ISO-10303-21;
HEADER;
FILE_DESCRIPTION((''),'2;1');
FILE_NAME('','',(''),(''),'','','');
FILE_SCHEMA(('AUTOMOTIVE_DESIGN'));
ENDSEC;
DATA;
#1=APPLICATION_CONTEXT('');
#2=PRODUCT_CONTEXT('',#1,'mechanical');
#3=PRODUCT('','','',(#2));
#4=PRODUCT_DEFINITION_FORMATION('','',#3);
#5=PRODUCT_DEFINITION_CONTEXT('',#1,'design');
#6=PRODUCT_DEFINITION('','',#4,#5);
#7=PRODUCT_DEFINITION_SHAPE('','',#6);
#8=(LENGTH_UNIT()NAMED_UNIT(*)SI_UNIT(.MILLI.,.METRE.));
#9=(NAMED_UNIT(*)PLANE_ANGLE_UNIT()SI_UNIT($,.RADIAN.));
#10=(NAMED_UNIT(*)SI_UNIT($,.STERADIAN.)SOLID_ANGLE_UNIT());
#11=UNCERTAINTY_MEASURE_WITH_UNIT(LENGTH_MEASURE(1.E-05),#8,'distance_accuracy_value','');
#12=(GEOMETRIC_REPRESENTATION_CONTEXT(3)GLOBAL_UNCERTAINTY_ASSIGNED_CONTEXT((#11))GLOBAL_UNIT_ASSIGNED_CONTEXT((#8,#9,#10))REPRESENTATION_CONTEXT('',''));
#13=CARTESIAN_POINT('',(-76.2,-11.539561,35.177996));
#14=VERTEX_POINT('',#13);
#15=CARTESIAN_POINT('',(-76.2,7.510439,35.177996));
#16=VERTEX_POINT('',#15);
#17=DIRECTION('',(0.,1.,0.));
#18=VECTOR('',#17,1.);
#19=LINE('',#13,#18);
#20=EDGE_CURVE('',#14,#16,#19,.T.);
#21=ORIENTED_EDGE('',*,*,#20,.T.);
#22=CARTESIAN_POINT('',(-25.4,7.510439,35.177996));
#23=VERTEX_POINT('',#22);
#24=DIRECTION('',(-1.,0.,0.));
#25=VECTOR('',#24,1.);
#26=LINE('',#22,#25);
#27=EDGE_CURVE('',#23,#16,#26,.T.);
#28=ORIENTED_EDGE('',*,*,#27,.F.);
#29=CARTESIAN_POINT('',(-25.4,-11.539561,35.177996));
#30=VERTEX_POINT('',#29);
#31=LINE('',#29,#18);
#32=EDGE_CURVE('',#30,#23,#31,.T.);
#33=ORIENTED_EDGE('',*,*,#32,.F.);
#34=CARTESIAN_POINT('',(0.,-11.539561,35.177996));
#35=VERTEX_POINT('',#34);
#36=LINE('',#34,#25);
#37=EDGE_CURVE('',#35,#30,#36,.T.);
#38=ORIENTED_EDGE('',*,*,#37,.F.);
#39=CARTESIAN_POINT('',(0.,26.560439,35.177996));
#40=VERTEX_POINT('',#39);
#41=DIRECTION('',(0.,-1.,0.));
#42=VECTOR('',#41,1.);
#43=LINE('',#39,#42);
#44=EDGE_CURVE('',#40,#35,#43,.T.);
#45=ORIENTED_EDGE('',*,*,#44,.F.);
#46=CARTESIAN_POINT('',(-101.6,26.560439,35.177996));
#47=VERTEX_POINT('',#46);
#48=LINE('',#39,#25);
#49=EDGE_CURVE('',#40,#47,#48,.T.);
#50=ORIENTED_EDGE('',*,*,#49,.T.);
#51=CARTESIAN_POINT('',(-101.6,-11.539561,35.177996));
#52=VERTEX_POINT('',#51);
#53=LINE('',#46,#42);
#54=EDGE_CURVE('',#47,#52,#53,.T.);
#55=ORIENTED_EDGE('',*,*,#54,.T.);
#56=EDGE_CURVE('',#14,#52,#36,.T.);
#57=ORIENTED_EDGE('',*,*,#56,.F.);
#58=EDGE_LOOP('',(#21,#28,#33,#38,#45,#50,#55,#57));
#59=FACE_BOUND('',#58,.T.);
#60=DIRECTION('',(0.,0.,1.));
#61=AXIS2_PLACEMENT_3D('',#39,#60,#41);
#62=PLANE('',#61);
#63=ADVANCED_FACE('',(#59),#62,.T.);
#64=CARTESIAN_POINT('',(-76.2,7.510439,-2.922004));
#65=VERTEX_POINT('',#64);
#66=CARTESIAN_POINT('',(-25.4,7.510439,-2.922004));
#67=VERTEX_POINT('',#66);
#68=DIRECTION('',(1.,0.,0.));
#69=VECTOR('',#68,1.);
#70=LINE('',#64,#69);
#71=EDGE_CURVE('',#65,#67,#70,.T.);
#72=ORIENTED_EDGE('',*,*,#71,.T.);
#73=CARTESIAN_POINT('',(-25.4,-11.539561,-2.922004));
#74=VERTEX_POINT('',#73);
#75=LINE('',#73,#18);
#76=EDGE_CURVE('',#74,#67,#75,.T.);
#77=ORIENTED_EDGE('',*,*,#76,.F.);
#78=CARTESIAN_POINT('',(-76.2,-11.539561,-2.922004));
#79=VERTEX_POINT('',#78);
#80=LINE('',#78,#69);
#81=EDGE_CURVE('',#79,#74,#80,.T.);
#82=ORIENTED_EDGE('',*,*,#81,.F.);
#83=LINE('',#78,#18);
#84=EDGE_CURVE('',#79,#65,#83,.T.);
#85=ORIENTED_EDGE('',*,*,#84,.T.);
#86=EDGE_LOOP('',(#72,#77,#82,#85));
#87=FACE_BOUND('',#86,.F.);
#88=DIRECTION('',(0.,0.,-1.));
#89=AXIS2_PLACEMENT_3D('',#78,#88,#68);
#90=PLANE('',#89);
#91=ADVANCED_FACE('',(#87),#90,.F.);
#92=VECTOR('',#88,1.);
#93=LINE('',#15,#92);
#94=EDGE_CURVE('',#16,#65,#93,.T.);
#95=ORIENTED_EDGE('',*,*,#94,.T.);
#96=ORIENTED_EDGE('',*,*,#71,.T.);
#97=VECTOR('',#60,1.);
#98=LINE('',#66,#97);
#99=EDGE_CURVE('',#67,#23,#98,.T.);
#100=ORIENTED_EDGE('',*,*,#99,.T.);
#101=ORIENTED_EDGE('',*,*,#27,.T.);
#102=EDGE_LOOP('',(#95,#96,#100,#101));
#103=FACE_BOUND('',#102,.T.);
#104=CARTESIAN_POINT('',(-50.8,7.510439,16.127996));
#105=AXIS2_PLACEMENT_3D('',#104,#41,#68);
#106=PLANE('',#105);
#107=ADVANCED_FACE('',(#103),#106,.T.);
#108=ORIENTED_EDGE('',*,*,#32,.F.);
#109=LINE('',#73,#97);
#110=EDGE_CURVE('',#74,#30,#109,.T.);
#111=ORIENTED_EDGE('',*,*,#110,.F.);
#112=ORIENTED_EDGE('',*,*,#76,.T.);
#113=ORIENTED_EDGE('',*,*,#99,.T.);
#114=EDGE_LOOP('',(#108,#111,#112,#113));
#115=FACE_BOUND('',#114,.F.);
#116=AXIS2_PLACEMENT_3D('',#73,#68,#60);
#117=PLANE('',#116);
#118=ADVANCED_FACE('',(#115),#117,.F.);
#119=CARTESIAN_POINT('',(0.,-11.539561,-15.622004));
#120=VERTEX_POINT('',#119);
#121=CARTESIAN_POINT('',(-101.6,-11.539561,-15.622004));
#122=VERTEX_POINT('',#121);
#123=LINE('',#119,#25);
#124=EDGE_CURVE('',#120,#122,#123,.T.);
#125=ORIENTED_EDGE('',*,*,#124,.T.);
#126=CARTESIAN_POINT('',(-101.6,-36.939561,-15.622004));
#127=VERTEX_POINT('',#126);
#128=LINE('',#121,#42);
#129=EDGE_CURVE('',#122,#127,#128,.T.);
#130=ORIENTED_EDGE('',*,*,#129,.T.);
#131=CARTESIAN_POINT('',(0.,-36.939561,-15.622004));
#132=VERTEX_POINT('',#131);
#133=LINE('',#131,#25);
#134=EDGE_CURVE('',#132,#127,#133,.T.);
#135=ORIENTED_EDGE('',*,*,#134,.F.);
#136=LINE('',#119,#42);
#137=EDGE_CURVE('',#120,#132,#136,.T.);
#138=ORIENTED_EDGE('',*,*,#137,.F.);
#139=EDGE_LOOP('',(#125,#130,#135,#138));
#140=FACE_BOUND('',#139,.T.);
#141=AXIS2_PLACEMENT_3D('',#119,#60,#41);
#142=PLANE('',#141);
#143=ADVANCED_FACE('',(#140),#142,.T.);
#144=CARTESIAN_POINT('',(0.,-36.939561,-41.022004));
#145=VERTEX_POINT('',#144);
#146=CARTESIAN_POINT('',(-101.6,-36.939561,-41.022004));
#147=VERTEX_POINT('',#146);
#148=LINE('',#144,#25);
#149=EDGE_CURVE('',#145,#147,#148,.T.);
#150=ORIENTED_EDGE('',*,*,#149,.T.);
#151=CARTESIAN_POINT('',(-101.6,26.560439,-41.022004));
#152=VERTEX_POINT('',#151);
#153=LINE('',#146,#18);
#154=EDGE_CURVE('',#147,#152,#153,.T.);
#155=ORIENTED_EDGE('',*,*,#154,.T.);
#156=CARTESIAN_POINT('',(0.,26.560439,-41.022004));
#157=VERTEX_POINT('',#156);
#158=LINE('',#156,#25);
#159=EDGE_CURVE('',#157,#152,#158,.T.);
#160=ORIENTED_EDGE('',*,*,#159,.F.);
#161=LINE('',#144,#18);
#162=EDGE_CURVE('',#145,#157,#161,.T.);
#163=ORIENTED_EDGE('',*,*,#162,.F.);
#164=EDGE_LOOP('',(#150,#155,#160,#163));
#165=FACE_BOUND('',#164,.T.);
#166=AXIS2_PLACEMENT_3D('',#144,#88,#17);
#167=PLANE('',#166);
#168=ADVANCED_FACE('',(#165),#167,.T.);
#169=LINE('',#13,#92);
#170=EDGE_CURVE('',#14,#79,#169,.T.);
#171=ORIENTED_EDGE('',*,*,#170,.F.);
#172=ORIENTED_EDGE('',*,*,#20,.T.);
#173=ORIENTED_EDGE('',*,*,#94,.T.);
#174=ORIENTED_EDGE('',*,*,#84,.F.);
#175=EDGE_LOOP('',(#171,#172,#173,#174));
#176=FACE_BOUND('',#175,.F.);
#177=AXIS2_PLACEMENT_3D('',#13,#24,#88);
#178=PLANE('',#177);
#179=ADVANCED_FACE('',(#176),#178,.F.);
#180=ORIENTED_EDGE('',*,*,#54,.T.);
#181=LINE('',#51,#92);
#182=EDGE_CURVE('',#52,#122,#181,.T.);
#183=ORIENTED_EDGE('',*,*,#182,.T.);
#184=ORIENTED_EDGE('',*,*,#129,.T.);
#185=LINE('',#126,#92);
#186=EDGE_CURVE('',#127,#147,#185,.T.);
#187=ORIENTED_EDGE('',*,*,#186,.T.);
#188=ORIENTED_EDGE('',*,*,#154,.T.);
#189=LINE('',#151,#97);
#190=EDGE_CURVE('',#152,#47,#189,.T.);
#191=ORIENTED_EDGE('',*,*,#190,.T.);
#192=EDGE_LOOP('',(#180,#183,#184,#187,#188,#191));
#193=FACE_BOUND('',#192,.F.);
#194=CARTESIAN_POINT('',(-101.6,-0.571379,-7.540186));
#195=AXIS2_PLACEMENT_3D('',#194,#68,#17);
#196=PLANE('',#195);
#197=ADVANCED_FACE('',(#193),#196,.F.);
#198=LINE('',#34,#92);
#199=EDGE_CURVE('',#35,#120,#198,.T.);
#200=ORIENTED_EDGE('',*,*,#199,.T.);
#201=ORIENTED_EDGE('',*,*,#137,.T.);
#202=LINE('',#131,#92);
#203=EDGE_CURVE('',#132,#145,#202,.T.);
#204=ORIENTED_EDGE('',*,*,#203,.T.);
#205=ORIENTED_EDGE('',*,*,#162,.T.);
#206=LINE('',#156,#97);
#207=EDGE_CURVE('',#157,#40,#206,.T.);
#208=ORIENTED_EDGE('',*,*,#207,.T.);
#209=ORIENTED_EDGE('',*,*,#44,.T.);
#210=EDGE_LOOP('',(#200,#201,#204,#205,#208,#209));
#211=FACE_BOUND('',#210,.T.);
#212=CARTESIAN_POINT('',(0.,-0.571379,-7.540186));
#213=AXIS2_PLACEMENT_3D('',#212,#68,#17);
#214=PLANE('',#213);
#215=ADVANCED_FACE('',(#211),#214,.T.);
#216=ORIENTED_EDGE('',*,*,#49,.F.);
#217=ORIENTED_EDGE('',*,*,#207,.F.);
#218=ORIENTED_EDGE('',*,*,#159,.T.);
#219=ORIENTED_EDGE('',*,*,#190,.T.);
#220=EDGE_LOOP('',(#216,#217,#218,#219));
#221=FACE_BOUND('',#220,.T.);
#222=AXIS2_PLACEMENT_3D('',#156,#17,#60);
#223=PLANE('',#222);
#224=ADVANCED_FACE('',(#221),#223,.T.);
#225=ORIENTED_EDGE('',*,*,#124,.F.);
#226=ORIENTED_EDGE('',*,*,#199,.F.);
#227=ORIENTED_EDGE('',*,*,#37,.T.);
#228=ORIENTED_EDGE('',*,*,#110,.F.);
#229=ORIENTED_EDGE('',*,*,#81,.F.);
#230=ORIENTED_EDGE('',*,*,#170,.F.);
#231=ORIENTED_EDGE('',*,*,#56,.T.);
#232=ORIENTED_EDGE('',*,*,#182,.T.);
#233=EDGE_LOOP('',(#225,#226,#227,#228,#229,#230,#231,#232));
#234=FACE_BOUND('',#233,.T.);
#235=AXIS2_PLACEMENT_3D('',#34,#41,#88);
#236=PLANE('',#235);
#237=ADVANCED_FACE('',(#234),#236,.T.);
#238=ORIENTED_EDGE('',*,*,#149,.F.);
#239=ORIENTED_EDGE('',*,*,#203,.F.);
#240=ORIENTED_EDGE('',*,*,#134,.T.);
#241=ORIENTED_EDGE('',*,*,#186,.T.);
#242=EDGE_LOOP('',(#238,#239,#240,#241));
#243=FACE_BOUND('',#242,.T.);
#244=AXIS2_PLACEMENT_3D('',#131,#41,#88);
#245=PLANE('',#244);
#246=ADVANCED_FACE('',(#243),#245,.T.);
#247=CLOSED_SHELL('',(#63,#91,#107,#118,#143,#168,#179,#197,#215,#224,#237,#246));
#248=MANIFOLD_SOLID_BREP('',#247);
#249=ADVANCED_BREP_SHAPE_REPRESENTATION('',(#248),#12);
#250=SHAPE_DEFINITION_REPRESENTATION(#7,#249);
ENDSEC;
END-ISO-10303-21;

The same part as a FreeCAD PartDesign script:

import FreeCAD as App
import Part
import Sketcher

V = App.Vector
Q = App.Units.Quantity

doc = App.newDocument("Part")
body = doc.addObject("PartDesign::Body", "Body")

sketch1 = body.newObject("Sketcher::SketchObject", "Sketch")
sketch1.AttachmentSupport = (doc.getObject("YZ_Plane"), [""])
sketch1.MapMode = "FlatFace"
sketch1.addGeometry([
    Part.LineSegment(V(27, 35, 0), V(-12, 35, 0)),
    Part.LineSegment(V(-12, 35, 0), V(-12, -16, 0)),
    Part.LineSegment(V(-12, -16, 0), V(-37, -16, 0)),
    Part.LineSegment(V(-37, -16, 0), V(-37, -41, 0)),
    Part.LineSegment(V(-37, -41, 0), V(27, -41, 0)),
    Part.LineSegment(V(27, -41, 0), V(27, 35, 0)),
], False)
sketch1.addConstraint([
    Sketcher.Constraint("Coincident", 0, 2, 1, 1),
    Sketcher.Constraint("Coincident", 1, 2, 2, 1),
    Sketcher.Constraint("Coincident", 2, 2, 3, 1),
    Sketcher.Constraint("Coincident", 3, 2, 4, 1),
    Sketcher.Constraint("Coincident", 4, 2, 5, 1),
    Sketcher.Constraint("Coincident", 5, 2, 0, 1),
    Sketcher.Constraint("Horizontal", 0),
    Sketcher.Constraint("Vertical", 1),
    Sketcher.Constraint("Horizontal", 2),
    Sketcher.Constraint("Vertical", 3),
    Sketcher.Constraint("Horizontal", 4),
    Sketcher.Constraint("Vertical", 5),
    Sketcher.Constraint("Equal", 2, 3),
    Sketcher.Constraint("DistanceX", 2, 2, 2, 1, Q("1 in")),
    Sketcher.Constraint("DistanceY", 1, 2, 1, 1, Q("2 in")),
    Sketcher.Constraint("DistanceX", 0, 2, 0, 1, Q("1.5 in")),
    Sketcher.Constraint("DistanceX", 0, 2, -1, 1, Q("11.539561 mm")),
    Sketcher.Constraint("DistanceY", -1, 1, 0, 2, Q("35.177996 mm")),
])
pad1 = body.newObject("PartDesign::Pad", "Pad")
pad1.Profile = sketch1
pad1.Length = Q("4 in")
pad1.Reversed = True

sketch2 = body.newObject("Sketcher::SketchObject", "Sketch001")
sketch2.AttachmentSupport = (doc.getObject("XZ_Plane"), [""])
sketch2.MapMode = "FlatFace"
sketch2.AttachmentOffset = App.Placement(V(0, 0, 11.539561), App.Rotation())
sketch2.addGeometry([
    Part.LineSegment(V(-76, 35, 0), V(-76, -3, 0)),
    Part.LineSegment(V(-76, -3, 0), V(-25, -3, 0)),
    Part.LineSegment(V(-25, -3, 0), V(-25, 35, 0)),
    Part.LineSegment(V(-25, 35, 0), V(-76, 35, 0)),
], False)
sketch2.addConstraint([
    Sketcher.Constraint("Coincident", 0, 2, 1, 1),
    Sketcher.Constraint("Coincident", 1, 2, 2, 1),
    Sketcher.Constraint("Coincident", 2, 2, 3, 1),
    Sketcher.Constraint("Coincident", 3, 2, 0, 1),
    Sketcher.Constraint("Vertical", 0),
    Sketcher.Constraint("Horizontal", 1),
    Sketcher.Constraint("Vertical", 2),
    Sketcher.Constraint("Horizontal", 3),
    Sketcher.Constraint("DistanceX", 1, 1, 1, 2, Q("2 in")),
    Sketcher.Constraint("DistanceY", 0, 2, 0, 1, Q("1.5 in")),
    Sketcher.Constraint("DistanceX", 0, 2, -1, 1, Q("3 in")),
    Sketcher.Constraint("DistanceY", 0, 2, -1, 1, Q("2.922004 mm")),
])
pocket1 = body.newObject("PartDesign::Pocket", "Pocket")
pocket1.Profile = sketch2
pocket1.Length = Q("0.75 in")

doc.recompute()
